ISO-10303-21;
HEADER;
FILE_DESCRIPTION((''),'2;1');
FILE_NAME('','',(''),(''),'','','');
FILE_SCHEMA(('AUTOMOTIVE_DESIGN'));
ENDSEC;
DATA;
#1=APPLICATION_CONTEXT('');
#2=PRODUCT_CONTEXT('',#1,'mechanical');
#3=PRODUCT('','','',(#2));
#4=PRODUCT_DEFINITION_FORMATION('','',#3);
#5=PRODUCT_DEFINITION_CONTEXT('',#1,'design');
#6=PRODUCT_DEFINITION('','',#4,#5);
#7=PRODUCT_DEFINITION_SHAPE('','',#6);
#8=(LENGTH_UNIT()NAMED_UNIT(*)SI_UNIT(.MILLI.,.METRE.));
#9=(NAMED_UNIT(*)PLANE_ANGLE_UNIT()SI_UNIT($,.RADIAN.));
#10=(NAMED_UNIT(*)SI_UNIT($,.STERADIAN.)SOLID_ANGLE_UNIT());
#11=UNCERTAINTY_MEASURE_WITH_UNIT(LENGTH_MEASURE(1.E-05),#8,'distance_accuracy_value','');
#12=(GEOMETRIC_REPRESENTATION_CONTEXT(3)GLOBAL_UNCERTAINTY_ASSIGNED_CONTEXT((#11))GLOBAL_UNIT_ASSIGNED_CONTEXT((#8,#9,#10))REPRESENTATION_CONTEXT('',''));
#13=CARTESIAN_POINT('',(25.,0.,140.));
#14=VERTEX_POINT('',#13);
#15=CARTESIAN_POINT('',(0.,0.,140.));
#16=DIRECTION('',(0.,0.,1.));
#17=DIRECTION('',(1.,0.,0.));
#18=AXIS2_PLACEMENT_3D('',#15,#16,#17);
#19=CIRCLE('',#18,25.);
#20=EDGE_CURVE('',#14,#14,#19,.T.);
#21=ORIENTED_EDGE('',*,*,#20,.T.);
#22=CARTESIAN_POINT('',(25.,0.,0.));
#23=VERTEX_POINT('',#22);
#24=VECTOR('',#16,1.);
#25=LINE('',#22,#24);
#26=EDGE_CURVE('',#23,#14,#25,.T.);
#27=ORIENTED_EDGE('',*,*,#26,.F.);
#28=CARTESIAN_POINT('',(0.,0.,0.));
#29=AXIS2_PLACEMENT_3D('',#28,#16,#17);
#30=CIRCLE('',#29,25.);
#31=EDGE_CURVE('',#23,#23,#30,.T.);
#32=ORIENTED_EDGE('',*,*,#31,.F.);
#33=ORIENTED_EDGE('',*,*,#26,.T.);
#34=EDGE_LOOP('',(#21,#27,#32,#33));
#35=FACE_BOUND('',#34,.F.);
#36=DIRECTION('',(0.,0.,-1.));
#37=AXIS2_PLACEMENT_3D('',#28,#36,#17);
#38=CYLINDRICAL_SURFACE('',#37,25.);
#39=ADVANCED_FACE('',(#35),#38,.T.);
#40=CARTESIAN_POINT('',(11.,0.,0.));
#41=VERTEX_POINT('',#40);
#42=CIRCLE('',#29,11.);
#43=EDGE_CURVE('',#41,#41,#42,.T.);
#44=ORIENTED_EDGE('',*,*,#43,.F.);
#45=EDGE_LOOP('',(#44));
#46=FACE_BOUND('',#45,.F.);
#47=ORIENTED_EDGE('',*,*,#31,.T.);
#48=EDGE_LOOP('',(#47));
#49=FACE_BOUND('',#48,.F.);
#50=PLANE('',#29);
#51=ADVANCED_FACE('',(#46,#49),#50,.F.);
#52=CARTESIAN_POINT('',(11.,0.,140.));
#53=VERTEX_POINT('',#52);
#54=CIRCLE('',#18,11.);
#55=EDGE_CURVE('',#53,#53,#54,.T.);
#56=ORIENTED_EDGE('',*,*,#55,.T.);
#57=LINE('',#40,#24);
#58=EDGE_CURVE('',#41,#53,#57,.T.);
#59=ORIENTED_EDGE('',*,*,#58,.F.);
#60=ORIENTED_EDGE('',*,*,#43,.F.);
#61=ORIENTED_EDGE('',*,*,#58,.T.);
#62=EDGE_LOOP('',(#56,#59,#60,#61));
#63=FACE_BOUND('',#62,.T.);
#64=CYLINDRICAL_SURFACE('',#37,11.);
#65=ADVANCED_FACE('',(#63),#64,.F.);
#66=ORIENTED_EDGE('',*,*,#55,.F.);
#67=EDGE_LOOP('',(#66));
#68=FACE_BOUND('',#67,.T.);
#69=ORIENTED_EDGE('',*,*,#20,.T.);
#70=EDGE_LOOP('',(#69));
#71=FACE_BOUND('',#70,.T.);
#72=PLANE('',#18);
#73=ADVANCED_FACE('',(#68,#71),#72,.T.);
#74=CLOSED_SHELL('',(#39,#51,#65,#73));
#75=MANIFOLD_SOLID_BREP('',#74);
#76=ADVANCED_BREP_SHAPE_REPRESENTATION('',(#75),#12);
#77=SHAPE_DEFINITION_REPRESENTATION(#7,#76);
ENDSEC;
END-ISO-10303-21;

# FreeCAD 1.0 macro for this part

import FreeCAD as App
import Part
import Sketcher
from FreeCAD import Vector

doc = App.newDocument("Part")
body = doc.addObject("PartDesign::Body", "Body")

# Sketch on XY plane
sketch1 = doc.addObject("Sketcher::SketchObject", "Sketch")
body.addObject(sketch1)
sketch1.AttachmentSupport = (doc.XY_Plane, [""])
sketch1.MapMode = "FlatFace"
sketch1.addGeometry(Part.Circle(Vector(0, 0, 0), Vector(0, 0, 1), 25), False)
sketch1.addGeometry(Part.Circle(Vector(0, 0, 0), Vector(0, 0, 1), 11), False)
sketch1.addConstraint(Sketcher.Constraint("Coincident", 0, 3, -1, 1))
sketch1.addConstraint(Sketcher.Constraint("Coincident", 1, 3, -1, 1))
sketch1.addConstraint(Sketcher.Constraint("Diameter", 0, 50.0))
sketch1.addConstraint(Sketcher.Constraint("Diameter", 1, 22.0))
pad1 = doc.addObject("PartDesign::Pad", "Pad")
body.addObject(pad1)
pad1.Profile = sketch1
pad1.Length = 140

doc.recompute()
